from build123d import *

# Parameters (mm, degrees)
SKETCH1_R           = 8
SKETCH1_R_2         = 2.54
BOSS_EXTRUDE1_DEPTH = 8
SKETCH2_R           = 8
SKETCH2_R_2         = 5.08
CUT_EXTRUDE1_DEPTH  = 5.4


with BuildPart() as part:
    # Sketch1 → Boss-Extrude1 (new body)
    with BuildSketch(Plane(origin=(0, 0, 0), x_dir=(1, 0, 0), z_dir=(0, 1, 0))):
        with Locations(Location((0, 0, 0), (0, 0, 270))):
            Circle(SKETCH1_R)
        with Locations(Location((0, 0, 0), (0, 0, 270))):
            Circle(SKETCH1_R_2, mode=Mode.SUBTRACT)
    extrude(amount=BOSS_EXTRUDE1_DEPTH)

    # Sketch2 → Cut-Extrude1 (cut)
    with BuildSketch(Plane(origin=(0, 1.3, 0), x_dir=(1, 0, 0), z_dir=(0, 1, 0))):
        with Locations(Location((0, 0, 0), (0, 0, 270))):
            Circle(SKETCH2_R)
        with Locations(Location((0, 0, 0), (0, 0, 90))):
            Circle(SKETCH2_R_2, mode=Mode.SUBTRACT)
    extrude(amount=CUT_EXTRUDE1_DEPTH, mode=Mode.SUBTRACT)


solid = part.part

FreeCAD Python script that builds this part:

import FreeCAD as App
import Part
import Sketcher
from FreeCAD import Vector
Q = App.Units.Quantity

doc = App.newDocument("Part")
body = doc.addObject("PartDesign::Body", "Body")

# Sketch on XZ plane
sketch1 = doc.addObject("Sketcher::SketchObject", "Sketch")
body.addObject(sketch1)
sketch1.AttachmentSupport = (doc.XZ_Plane, [""])
sketch1.MapMode = "FlatFace"
sketch1.addGeometry([
    Part.Circle(Vector(0, 0, 0), Vector(0, 0, 1), 8),
    Part.Circle(Vector(0, 0, 0), Vector(0, 0, 1), 2.5),
], False)
sketch1.addConstraint([
    Sketcher.Constraint("Coincident", 0, 3, -1, 1),
    Sketcher.Constraint("Coincident", 1, 3, -1, 1),
    Sketcher.Constraint("Diameter", 0, Q("16 mm")),
    Sketcher.Constraint("Diameter", 1, Q("5.08 mm")),
])
pad1 = doc.addObject("PartDesign::Pad", "Pad")
body.addObject(pad1)
pad1.Profile = sketch1
pad1.Length = 8
pad1.Reversed = True

# Sketch on XZ plane
sketch2 = doc.addObject("Sketcher::SketchObject", "Sketch001")
body.addObject(sketch2)
sketch2.AttachmentSupport = (doc.XZ_Plane, [""])
sketch2.MapMode = "FlatFace"
sketch2.AttachmentOffset = App.Placement(Vector(0, 0, -1.3), App.Rotation())
sketch2.addGeometry([
    Part.Circle(Vector(0, 0, 0), Vector(0, 0, 1), 8),
    Part.Circle(Vector(0, 0, 0), Vector(0, 0, 1), 5),
], False)
sketch2.addConstraint([
    Sketcher.Constraint("Coincident", 0, 3, -1, 1),
    Sketcher.Constraint("Coincident", 1, 3, -1, 1),
    Sketcher.Constraint("Diameter", 0, Q("16 mm")),
    Sketcher.Constraint("Diameter", 1, Q("10.16 mm")),
])
pocket1 = doc.addObject("PartDesign::Pocket", "Pocket")
body.addObject(pocket1)
pocket1.Profile = sketch2
pocket1.Length = 5.4

doc.recompute()
